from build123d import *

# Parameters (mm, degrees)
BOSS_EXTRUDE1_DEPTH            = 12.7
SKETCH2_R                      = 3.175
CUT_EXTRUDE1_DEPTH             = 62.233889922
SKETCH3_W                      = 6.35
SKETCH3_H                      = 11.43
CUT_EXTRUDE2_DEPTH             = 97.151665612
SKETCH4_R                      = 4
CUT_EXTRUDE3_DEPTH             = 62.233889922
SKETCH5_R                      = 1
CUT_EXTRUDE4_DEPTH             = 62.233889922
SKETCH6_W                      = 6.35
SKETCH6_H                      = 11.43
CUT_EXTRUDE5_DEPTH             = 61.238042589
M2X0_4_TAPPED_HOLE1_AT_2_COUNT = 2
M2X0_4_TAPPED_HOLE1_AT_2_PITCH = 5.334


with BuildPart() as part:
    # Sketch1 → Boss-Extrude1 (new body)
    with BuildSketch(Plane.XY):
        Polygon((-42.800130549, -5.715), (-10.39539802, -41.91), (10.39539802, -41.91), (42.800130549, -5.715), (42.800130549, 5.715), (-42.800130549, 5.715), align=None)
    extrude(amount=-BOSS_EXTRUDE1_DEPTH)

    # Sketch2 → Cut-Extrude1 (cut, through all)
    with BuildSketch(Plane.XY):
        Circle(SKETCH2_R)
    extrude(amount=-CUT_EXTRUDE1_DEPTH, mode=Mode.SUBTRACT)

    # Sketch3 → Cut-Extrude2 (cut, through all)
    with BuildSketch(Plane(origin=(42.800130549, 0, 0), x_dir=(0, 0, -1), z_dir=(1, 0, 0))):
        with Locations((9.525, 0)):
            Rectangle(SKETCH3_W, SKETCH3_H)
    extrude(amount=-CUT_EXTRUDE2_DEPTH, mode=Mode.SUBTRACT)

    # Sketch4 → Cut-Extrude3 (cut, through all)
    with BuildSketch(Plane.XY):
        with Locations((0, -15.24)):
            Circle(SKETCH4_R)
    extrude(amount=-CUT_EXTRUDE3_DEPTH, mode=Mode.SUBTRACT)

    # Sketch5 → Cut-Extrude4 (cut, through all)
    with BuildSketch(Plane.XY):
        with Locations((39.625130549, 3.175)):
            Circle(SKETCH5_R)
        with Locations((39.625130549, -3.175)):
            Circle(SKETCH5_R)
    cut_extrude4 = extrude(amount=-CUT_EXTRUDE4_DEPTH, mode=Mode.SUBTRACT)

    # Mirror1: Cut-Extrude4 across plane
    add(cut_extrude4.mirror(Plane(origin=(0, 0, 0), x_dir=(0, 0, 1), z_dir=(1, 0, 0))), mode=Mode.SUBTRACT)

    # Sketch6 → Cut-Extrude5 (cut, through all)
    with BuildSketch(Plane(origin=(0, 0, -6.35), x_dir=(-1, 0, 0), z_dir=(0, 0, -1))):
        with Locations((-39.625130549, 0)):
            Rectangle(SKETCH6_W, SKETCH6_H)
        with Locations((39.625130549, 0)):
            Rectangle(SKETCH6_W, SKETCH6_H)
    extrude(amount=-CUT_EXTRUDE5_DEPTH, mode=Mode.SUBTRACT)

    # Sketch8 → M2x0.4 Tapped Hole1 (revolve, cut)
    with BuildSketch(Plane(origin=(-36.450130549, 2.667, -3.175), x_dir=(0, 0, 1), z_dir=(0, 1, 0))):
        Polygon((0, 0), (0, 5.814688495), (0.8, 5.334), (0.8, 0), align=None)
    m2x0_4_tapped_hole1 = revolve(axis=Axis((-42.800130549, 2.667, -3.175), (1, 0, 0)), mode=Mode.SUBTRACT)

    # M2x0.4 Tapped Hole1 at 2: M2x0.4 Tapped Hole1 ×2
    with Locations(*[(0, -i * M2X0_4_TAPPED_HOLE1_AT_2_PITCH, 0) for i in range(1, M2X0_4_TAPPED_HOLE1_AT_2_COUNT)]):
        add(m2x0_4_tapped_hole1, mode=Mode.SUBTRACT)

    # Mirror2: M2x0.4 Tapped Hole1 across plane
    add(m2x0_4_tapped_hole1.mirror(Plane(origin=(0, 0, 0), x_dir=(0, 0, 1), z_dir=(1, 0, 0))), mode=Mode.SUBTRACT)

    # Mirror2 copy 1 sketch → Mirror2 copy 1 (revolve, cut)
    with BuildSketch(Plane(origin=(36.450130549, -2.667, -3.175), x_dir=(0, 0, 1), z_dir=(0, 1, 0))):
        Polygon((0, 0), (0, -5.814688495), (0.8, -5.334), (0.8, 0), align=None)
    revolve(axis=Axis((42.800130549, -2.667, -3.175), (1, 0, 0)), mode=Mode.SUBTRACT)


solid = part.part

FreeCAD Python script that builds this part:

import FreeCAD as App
import Part
import Sketcher
from FreeCAD import Vector
Q = App.Units.Quantity

doc = App.newDocument("Part")
body = doc.addObject("PartDesign::Body", "Body")

# Sketch on XY plane
sketch1 = body.newObject("Sketcher::SketchObject", "Sketch")
sketch1.AttachmentSupport = (doc.getObject("XY_Plane"), [""])
sketch1.MapMode = "FlatFace"
sketch1.addGeometry([
    Part.LineSegment(Vector(-42.800131, -5.715, 0), Vector(-10.395398, -41.91, 0)),  # 0
    Part.LineSegment(Vector(-10.395398, -41.91, 0), Vector(10.395398, -41.91, 0)),  # 1
    Part.LineSegment(Vector(10.395398, -41.91, 0), Vector(42.800131, -5.715, 0)),  # 2
    Part.LineSegment(Vector(42.800131, -5.715, 0), Vector(42.800131, 5.715, 0)),  # 3
    Part.LineSegment(Vector(42.800131, 5.715, 0), Vector(-42.800131, 5.715, 0)),  # 4
    Part.LineSegment(Vector(-42.800131, 5.715, 0), Vector(-42.800131, -5.715, 0)),  # 5
], False)
sketch1.addConstraint([
    Sketcher.Constraint("Coincident", 0, 2, 1, 1),
    Sketcher.Constraint("Coincident", 1, 2, 2, 1),
    Sketcher.Constraint("Coincident", 2, 2, 3, 1),
    Sketcher.Constraint("Coincident", 3, 2, 4, 1),
    Sketcher.Constraint("Coincident", 4, 2, 5, 1),
    Sketcher.Constraint("Coincident", 5, 2, 0, 1),
    Sketcher.Constraint("Horizontal", 1),
    Sketcher.Constraint("Vertical", 3),
    Sketcher.Constraint("Horizontal", 4),
    Sketcher.Constraint("Vertical", 5),
    Sketcher.Constraint("Symmetric", 2, 2, 4, 2, -1, 1),
    Sketcher.Constraint("Horizontal", 2, 2, 5, 2),
    Sketcher.Constraint("Equal", 0, 2),
    Sketcher.Constraint("DistanceY", 3, 1, 3, 2, Q("0.45 in")),
    Sketcher.Constraint("DistanceY", 0, 2, -1, 1, Q("1.65 in")),
    Sketcher.Constraint("DistanceX", 4, 2, 4, 1, 85.600261),
    Sketcher.Constraint("DistanceX", 0, 2, -1, 1, 10.395398),
])
pad1 = body.newObject("PartDesign::Pad", "Pad")
pad1.Profile = sketch1
pad1.Length = Q("0.5 in")
pad1.Reversed = True

# Sketch on XY plane
sketch2 = body.newObject("Sketcher::SketchObject", "Sketch001")
sketch2.AttachmentSupport = (doc.getObject("XY_Plane"), [""])
sketch2.MapMode = "FlatFace"
sketch2.addGeometry(Part.Circle(Vector(0, 0, 0), Vector(0, 0, 1), 3.175), False)
sketch2.addConstraint([
    Sketcher.Constraint("Coincident", 0, 3, -1, 1),
    Sketcher.Constraint("Diameter", 0, Q("0.25 in")),
])
pocket1 = body.newObject("PartDesign::Pocket", "Pocket")
pocket1.Profile = sketch2
pocket1.Type = "ThroughAll"

# Sketch on YZ plane
sketch3 = body.newObject("Sketcher::SketchObject", "Sketch002")
sketch3.AttachmentSupport = (doc.getObject("YZ_Plane"), [""])
sketch3.MapMode = "FlatFace"
sketch3.AttachmentOffset = App.Placement(Vector(0, 0, 42.800131), App.Rotation())
sketch3.addGeometry([
    Part.LineSegment(Vector(5.715, -6.35, 0), Vector(-5.715, -6.35, 0)),
    Part.LineSegment(Vector(-5.715, -6.35, 0), Vector(-5.715, -12.7, 0)),
    Part.LineSegment(Vector(-5.715, -12.7, 0), Vector(5.715, -12.7, 0)),
    Part.LineSegment(Vector(5.715, -12.7, 0), Vector(5.715, -6.35, 0)),
], False)
sketch3.addConstraint([
    Sketcher.Constraint("Coincident", 0, 2, 1, 1),
    Sketcher.Constraint("Coincident", 1, 2, 2, 1),
    Sketcher.Constraint("Coincident", 2, 2, 3, 1),
    Sketcher.Constraint("Coincident", 3, 2, 0, 1),
    Sketcher.Constraint("Horizontal", 0),
    Sketcher.Constraint("Vertical", 1),
    Sketcher.Constraint("Horizontal", 2),
    Sketcher.Constraint("Vertical", 3),
    Sketcher.Constraint("DistanceX", 0, 2, 0, 1, Q("0.45 in")),
    Sketcher.Constraint("DistanceY", 1, 2, 1, 1, Q("0.25 in")),
    Sketcher.Constraint("DistanceY", 1, 2, -1, 1, Q("0.5 in")),
    Sketcher.Constraint("DistanceX", 0, 2, -1, 1, Q("0.225 in")),
])
pocket2 = body.newObject("PartDesign::Pocket", "Pocket001")
pocket2.Profile = sketch3
pocket2.Type = "ThroughAll"

# Sketch on XY plane
sketch4 = body.newObject("Sketcher::SketchObject", "Sketch003")
sketch4.AttachmentSupport = (doc.getObject("XY_Plane"), [""])
sketch4.MapMode = "FlatFace"
sketch4.addGeometry(Part.Circle(Vector(0, -15.24, 0), Vector(0, 0, 1), 4), False)
sketch4.addConstraint([
    Sketcher.Constraint("PointOnObject", 0, 3, -2),
    Sketcher.Constraint("DistanceY", 0, 3, -1, 1, Q("0.6 in")),
    Sketcher.Constraint("Diameter", 0, 8.0),
])
pocket3 = body.newObject("PartDesign::Pocket", "Pocket002")
pocket3.Profile = sketch4
pocket3.Type = "ThroughAll"

# Sketch on XY plane
sketch5 = body.newObject("Sketcher::SketchObject", "Sketch004")
sketch5.AttachmentSupport = (doc.getObject("XY_Plane"), [""])
sketch5.MapMode = "FlatFace"
sketch5.addGeometry([
    Part.Circle(Vector(39.625131, 3.175, 0), Vector(0, 0, 1), 1),
    Part.Circle(Vector(39.625131, -3.175, 0), Vector(0, 0, 1), 1),
], False)
sketch5.addConstraint([
    Sketcher.Constraint("Equal", 0, 1),
    Sketcher.Constraint("Symmetric", 0, 3, 1, 3, -1),
    Sketcher.Constraint("Diameter", 0, 2.0),
    Sketcher.Constraint("DistanceY", 1, 3, 0, 3, Q("0.25 in")),
    Sketcher.Constraint("DistanceX", -1, 1, 0, 3, 39.625131),
])
pocket4 = body.newObject("PartDesign::Pocket", "Pocket003")
pocket4.Profile = sketch5
pocket4.Type = "ThroughAll"
doc.recompute()

mirrored = body.newObject("PartDesign::Mirrored", "Mirrored")
mirrored.Originals = [pocket4]
mirrored.MirrorPlane = (doc.getObject("YZ_Plane"), [""])
body.Tip = mirrored

# Sketch on XY plane
sketch6 = body.newObject("Sketcher::SketchObject", "Sketch005")
sketch6.AttachmentSupport = (doc.getObject("XY_Plane"), [""])
sketch6.MapMode = "FlatFace"
sketch6.AttachmentOffset = App.Placement(Vector(0, 0, -0.25 * 25.4), App.Rotation())
sketch6.addGeometry([
    Part.LineSegment(Vector(42.800131, 5.715, 0), Vector(42.800131, -5.715, 0)),  # 0
    Part.LineSegment(Vector(42.800131, -5.715, 0), Vector(36.450131, -5.715, 0)),  # 1
    Part.LineSegment(Vector(36.450131, -5.715, 0), Vector(36.450131, 5.715, 0)),  # 2
    Part.LineSegment(Vector(36.450131, 5.715, 0), Vector(42.800131, 5.715, 0)),  # 3
    Part.LineSegment(Vector(-36.450131, 5.715, 0), Vector(-36.450131, -5.715, 0)),  # 4
    Part.LineSegment(Vector(-36.450131, -5.715, 0), Vector(-42.800131, -5.715, 0)),  # 5
    Part.LineSegment(Vector(-42.800131, -5.715, 0), Vector(-42.800131, 5.715, 0)),  # 6
    Part.LineSegment(Vector(-42.800131, 5.715, 0), Vector(-36.450131, 5.715, 0)),  # 7
], False)
sketch6.addConstraint([
    Sketcher.Constraint("Coincident", 0, 2, 1, 1),
    Sketcher.Constraint("Coincident", 1, 2, 2, 1),
    Sketcher.Constraint("Coincident", 2, 2, 3, 1),
    Sketcher.Constraint("Coincident", 3, 2, 0, 1),
    Sketcher.Constraint("Coincident", 4, 2, 5, 1),
    Sketcher.Constraint("Coincident", 5, 2, 6, 1),
    Sketcher.Constraint("Coincident", 6, 2, 7, 1),
    Sketcher.Constraint("Coincident", 7, 2, 4, 1),
    Sketcher.Constraint("Vertical", 0),
    Sketcher.Constraint("Horizontal", 1),
    Sketcher.Constraint("Vertical", 2),
    Sketcher.Constraint("Horizontal", 3),
    Sketcher.Constraint("Vertical", 4),
    Sketcher.Constraint("Horizontal", 5),
    Sketcher.Constraint("Vertical", 6),
    Sketcher.Constraint("Horizontal", 7),
    Sketcher.Constraint("Symmetric", 2, 2, 4, 2, -1, 1),
    Sketcher.Constraint("Symmetric", 0, 2, 6, 2, -1, 1),
    Sketcher.Constraint("Horizontal", 1, 2, 4, 2),
    Sketcher.Constraint("DistanceX", 1, 2, 1, 1, Q("0.25 in")),
    Sketcher.Constraint("DistanceY", 0, 2, 0, 1, Q("0.45 in")),
    Sketcher.Constraint("DistanceX", -1, 1, 0, 2, 42.800131),
])
pocket5 = body.newObject("PartDesign::Pocket", "Pocket004")
pocket5.Profile = sketch6
pocket5.Type = "ThroughAll"
pocket5.Reversed = True

# Sketch on XZ plane
sketch7 = body.newObject("Sketcher::SketchObject", "Sketch006")
sketch7.AttachmentSupport = (doc.getObject("XZ_Plane"), [""])
sketch7.MapMode = "FlatFace"
sketch7.AttachmentOffset = App.Placement(Vector(0, 0, -0.105 * 25.4), App.Rotation())
sketch7.addGeometry([
    Part.LineSegment(Vector(-30.635442, -3.175, 0), Vector(-36.450131, -3.175, 0)),
    Part.LineSegment(Vector(-36.450131, -3.175, 0), Vector(-36.450131, -2.375, 0)),
    Part.LineSegment(Vector(-36.450131, -2.375, 0), Vector(-31.116131, -2.375, 0)),
    Part.LineSegment(Vector(-31.116131, -2.375, 0), Vector(-30.635442, -3.175, 0)),
], False)
sketch7.addGeometry(Part.LineSegment(Vector(-36.450131, -3.175, 0), Vector(-30.635442, -3.175, 0)), True)  # axis
sketch7.addConstraint([
    Sketcher.Constraint("Coincident", 0, 2, 1, 1),
    Sketcher.Constraint("Coincident", 1, 2, 2, 1),
    Sketcher.Constraint("Coincident", 2, 2, 3, 1),
    Sketcher.Constraint("Coincident", 3, 2, 0, 1),
    Sketcher.Constraint("Horizontal", 0),
    Sketcher.Constraint("Vertical", 1),
    Sketcher.Constraint("Horizontal", 2),
    Sketcher.Constraint("Horizontal", 4),
    Sketcher.Constraint("Coincident", 4, 1, 0, 2),
    Sketcher.Constraint("Equal", 0, 4),
    Sketcher.Constraint("Angle", 3, Q("-59 deg")),
    Sketcher.Constraint("DistanceX", 2, 1, 2, 2, Q("0.21 in")),
    Sketcher.Constraint("DistanceY", 0, 2, -1, 1, Q("0.125 in")),
    Sketcher.Constraint("DistanceY", 1, 1, 1, 2, 0.8),
    Sketcher.Constraint("DistanceX", 0, 2, -1, 1, 36.450131),
])
groove = body.newObject("PartDesign::Groove", "Groove")
groove.Profile = sketch7
groove.ReferenceAxis = (sketch7, ["Axis0"])
groove.Angle = 360
doc.recompute()

linearpattern = body.newObject("PartDesign::LinearPattern", "LinearPattern")
linearpattern.Originals = [groove]
linearpattern.Direction = (doc.getObject("Y_Axis"), [""])
linearpattern.Mode = "offset"
linearpattern.Offset = Q("0.21 in")
linearpattern.Occurrences = 2
linearpattern.Reversed = True
body.Tip = linearpattern
doc.recompute()

mirrored2 = body.newObject("PartDesign::Mirrored", "Mirrored001")
mirrored2.Originals = [groove]
mirrored2.MirrorPlane = (doc.getObject("YZ_Plane"), [""])
body.Tip = mirrored2

# Sketch on XZ plane
sketch8 = body.newObject("Sketcher::SketchObject", "Sketch007")
sketch8.AttachmentSupport = (doc.getObject("XZ_Plane"), [""])
sketch8.MapMode = "FlatFace"
sketch8.AttachmentOffset = App.Placement(Vector(0, 0, 0.105 * 25.4), App.Rotation())
sketch8.addGeometry([
    Part.LineSegment(Vector(36.450131, -3.175, 0), Vector(30.635442, -3.175, 0)),
    Part.LineSegment(Vector(30.635442, -3.175, 0), Vector(31.116131, -2.375, 0)),
    Part.LineSegment(Vector(31.116131, -2.375, 0), Vector(36.450131, -2.375, 0)),
    Part.LineSegment(Vector(36.450131, -2.375, 0), Vector(36.450131, -3.175, 0)),
], False)
sketch8.addGeometry(Part.LineSegment(Vector(30.635442, -3.175, 0), Vector(36.450131, -3.175, 0)), True)  # axis
sketch8.addConstraint([
    Sketcher.Constraint("Coincident", 0, 2, 1, 1),
    Sketcher.Constraint("Coincident", 1, 2, 2, 1),
    Sketcher.Constraint("Coincident", 2, 2, 3, 1),
    Sketcher.Constraint("Coincident", 3, 2, 0, 1),
    Sketcher.Constraint("Horizontal", 0),
    Sketcher.Constraint("Horizontal", 2),
    Sketcher.Constraint("Vertical", 3),
    Sketcher.Constraint("Horizontal", 4),
    Sketcher.Constraint("Coincident", 4, 1, 0, 2),
    Sketcher.Constraint("Vertical", 2, 2, 4, 2),
    Sketcher.Constraint("Angle", 1, Q("59 deg")),
    Sketcher.Constraint("DistanceX", 2, 1, 2, 2, Q("0.21 in")),
    Sketcher.Constraint("DistanceY", 0, 2, -1, 1, Q("0.125 in")),
    Sketcher.Constraint("DistanceY", 3, 2, 3, 1, 0.8),
    Sketcher.Constraint("DistanceX", -1, 1, 1, 2, 31.116131),
])
groove2 = body.newObject("PartDesign::Groove", "Groove001")
groove2.Profile = sketch8
groove2.ReferenceAxis = (sketch8, ["Axis0"])
groove2.Angle = 360

doc.recompute()
